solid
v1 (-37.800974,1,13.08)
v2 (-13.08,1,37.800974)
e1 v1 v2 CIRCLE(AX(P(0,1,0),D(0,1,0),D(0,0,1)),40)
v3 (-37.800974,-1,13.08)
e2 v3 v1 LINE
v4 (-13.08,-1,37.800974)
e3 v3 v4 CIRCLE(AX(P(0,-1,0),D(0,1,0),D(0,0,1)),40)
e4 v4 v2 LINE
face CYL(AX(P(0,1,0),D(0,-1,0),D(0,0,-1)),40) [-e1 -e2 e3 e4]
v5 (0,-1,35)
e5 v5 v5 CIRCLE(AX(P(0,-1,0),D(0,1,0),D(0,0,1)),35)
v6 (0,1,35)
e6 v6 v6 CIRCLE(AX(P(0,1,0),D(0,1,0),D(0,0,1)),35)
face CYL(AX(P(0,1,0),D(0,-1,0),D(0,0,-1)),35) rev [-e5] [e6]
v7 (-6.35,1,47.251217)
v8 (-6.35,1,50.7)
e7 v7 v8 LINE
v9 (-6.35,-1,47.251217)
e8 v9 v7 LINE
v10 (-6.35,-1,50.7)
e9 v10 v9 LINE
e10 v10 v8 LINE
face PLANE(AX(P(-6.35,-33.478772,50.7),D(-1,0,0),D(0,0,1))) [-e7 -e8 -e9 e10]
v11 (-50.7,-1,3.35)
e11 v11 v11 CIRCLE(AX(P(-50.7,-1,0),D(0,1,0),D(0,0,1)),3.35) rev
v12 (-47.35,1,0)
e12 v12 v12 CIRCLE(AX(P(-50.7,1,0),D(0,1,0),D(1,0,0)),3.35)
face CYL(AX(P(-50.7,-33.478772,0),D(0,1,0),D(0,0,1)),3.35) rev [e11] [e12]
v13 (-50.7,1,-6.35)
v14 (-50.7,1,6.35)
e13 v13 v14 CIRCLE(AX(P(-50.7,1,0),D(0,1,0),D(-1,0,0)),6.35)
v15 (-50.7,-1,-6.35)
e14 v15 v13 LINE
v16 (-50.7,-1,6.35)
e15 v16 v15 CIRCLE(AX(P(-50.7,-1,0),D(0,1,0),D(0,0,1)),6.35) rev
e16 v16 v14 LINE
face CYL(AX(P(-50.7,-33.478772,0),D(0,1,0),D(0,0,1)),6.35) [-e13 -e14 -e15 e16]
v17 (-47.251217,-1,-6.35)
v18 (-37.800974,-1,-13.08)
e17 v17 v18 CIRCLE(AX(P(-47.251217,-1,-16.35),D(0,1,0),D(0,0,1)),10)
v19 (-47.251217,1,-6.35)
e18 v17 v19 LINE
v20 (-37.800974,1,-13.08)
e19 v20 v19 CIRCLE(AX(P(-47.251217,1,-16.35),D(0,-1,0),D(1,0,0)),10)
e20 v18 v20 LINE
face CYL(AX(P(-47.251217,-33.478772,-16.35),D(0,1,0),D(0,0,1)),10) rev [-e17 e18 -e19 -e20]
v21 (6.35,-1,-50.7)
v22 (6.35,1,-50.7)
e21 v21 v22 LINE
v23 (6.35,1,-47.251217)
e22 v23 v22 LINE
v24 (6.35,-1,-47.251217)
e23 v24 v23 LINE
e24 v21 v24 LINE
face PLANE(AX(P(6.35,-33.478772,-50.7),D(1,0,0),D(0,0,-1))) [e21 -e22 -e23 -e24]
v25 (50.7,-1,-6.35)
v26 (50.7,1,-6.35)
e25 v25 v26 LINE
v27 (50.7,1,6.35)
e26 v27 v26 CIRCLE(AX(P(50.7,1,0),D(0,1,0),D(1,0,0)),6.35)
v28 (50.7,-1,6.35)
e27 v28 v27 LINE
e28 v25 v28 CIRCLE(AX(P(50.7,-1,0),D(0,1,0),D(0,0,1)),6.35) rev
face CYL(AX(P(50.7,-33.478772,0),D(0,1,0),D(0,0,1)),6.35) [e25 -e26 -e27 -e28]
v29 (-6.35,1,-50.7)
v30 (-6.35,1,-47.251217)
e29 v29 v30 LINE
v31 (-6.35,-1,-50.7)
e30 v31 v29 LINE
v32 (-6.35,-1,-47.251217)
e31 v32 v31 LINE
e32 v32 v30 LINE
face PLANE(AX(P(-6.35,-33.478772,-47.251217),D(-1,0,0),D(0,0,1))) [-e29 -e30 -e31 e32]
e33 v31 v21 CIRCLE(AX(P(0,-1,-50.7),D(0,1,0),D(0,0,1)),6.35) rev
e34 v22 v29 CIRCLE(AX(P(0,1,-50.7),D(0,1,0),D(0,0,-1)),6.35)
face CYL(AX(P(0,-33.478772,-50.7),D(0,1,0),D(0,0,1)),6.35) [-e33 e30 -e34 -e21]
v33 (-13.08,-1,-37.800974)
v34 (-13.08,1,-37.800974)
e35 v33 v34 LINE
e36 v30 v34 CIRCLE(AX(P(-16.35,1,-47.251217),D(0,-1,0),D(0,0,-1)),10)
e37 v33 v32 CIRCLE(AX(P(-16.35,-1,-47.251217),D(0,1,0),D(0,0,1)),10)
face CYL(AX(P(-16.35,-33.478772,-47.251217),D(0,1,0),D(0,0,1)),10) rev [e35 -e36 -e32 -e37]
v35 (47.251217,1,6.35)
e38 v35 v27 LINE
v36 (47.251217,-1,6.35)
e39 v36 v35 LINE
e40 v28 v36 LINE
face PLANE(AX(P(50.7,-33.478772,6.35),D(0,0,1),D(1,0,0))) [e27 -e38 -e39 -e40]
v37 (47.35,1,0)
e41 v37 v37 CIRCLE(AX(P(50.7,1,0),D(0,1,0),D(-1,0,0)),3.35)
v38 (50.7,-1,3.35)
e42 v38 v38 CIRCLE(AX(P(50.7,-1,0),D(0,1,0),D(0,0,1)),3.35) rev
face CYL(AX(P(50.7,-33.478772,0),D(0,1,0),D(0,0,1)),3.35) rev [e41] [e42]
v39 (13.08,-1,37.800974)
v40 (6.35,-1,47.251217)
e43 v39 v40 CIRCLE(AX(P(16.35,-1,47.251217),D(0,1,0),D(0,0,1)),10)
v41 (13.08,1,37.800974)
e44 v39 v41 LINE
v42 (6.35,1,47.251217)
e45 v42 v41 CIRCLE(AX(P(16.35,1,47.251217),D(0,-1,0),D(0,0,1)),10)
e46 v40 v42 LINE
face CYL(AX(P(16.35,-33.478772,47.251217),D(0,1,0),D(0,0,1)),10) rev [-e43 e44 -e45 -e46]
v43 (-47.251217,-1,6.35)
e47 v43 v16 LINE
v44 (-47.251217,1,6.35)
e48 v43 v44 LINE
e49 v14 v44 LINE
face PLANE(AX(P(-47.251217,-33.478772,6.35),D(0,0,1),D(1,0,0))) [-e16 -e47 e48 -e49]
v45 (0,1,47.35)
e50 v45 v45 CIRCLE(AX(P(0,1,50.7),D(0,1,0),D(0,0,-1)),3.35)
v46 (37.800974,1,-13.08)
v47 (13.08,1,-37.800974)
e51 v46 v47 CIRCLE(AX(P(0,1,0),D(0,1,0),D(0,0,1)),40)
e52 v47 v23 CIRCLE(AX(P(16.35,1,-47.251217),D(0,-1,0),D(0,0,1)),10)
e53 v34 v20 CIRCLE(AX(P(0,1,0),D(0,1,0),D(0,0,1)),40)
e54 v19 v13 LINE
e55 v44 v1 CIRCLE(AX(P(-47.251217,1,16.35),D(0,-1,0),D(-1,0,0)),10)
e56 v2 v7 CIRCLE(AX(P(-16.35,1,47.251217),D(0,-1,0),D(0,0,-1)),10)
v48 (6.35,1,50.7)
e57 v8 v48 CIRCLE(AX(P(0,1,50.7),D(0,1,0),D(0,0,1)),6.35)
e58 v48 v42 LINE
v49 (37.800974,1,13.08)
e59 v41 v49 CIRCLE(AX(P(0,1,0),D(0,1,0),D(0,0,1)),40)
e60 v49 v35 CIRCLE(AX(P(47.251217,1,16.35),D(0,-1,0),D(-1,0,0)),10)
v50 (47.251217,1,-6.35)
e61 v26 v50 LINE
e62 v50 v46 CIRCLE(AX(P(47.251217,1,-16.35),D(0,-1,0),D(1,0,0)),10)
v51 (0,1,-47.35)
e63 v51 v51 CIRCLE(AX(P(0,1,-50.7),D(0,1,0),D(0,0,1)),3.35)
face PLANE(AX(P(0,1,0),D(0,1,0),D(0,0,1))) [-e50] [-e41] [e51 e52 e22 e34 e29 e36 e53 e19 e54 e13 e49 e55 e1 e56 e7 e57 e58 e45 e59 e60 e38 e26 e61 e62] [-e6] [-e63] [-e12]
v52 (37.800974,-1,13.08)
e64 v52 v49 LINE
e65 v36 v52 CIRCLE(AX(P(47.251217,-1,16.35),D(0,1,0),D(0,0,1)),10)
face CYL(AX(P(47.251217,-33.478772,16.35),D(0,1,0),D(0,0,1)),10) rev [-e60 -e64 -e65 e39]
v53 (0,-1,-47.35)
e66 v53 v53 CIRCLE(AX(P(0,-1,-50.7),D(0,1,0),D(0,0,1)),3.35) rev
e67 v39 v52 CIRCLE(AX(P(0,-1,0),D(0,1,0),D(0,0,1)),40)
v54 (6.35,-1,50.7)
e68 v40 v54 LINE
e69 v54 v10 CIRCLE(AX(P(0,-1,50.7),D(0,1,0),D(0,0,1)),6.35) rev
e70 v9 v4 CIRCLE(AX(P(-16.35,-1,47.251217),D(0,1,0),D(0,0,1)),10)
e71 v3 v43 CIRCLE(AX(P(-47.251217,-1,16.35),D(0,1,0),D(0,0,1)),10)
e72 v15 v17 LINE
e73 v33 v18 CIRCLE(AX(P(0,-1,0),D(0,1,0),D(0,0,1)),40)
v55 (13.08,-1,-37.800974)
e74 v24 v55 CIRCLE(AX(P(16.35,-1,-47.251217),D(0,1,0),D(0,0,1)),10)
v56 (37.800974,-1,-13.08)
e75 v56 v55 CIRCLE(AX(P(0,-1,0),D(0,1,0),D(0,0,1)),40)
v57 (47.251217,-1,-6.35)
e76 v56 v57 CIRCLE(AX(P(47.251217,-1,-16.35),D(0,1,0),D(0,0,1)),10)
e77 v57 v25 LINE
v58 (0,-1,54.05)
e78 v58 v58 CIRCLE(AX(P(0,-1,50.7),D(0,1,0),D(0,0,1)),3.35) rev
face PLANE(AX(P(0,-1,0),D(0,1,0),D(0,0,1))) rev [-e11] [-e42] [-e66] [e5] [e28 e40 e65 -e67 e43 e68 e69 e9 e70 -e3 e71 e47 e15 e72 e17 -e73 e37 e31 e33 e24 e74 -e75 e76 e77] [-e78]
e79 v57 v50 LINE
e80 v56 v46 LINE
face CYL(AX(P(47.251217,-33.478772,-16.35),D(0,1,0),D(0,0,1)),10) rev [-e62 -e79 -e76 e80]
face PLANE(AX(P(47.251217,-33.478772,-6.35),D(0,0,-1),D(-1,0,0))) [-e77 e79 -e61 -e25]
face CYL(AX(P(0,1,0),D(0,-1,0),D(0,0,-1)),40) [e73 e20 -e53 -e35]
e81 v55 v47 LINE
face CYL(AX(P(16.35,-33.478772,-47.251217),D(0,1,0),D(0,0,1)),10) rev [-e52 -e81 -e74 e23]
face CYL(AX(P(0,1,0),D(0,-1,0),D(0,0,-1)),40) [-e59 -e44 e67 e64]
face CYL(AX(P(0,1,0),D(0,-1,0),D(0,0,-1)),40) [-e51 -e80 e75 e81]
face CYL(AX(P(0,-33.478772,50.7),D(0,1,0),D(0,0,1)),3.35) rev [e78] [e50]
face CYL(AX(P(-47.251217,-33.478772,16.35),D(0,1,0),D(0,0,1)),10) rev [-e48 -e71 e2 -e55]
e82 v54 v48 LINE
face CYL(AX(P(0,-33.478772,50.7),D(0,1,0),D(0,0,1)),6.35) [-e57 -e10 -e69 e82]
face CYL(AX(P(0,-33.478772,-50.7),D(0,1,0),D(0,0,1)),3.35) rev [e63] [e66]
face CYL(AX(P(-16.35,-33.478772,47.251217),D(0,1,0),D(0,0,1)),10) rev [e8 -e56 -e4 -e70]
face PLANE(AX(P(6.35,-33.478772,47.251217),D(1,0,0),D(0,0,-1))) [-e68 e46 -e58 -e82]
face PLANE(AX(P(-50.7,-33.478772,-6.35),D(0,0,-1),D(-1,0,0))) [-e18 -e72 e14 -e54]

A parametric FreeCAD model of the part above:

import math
import FreeCAD as App
import Part
import Sketcher

V = App.Vector

doc = App.newDocument("Part")
body = doc.addObject("PartDesign::Body", "Body")

# Sketch on XZ plane
sketch1 = body.newObject("Sketcher::SketchObject", "Sketch")
sketch1.AttachmentSupport = (doc.getObject("XZ_Plane"), [""])
sketch1.MapMode = "FlatFace"
sketch1.addGeometry(Part.Circle(V(0, 0, 0), V(0, 0, 1), 40), False)
sketch1.addGeometry(Part.Circle(V(0, 0, 0), V(0, 0, 1), 35), False)
sketch1.addConstraint(Sketcher.Constraint("Coincident", 0, 3, -1, 1))
sketch1.addConstraint(Sketcher.Constraint("Coincident", 1, 3, -1, 1))
sketch1.addConstraint(Sketcher.Constraint("Diameter", 0, 80.0))
sketch1.addConstraint(Sketcher.Constraint("Diameter", 1, 70.0))
pad1 = body.newObject("PartDesign::Pad", "Pad")
pad1.Profile = sketch1
pad1.Length = 2
pad1.Midplane = True

# Sketch on XZ plane
sketch2 = body.newObject("Sketcher::SketchObject", "Sketch001")
sketch2.AttachmentSupport = (doc.getObject("XZ_Plane"), [""])
sketch2.MapMode = "FlatFace"
sketch2.AttachmentOffset = App.Placement(V(0, 0, -1), App.Rotation())
sketch2.addGeometry(Part.LineSegment(V(-6.3, -50.7, 0), V(-6.3, -47.3, 0)), False)
sketch2.addGeometry(Part.ArcOfCircle(Part.Circle(V(-16.4, -47.3, 0), V(0, 0, 1), 10), math.radians(0), math.radians(71)), False)
sketch2.addGeometry(Part.ArcOfCircle(Part.Circle(V(0, 0, 0), V(0, 0, 1), 40), math.radians(-109), math.radians(-71)), False)
sketch2.addGeometry(Part.ArcOfCircle(Part.Circle(V(16.4, -47.3, 0), V(0, 0, 1), 10), math.radians(109), math.radians(180)), False)
sketch2.addGeometry(Part.LineSegment(V(6.3, -47.3, 0), V(6.3, -50.7, 0)), False)
sketch2.addGeometry(Part.ArcOfCircle(Part.Circle(V(0, -50.7, 0), V(0, 0, 1), 6.3), math.radians(180), math.radians(360)), False)
sketch2.addGeometry(Part.Circle(V(0, -50.7, 0), V(0, 0, 1), 3.4), False)
sketch2.addConstraint(Sketcher.Constraint("Tangent", 0, 2, 1, 1))
sketch2.addConstraint(Sketcher.Constraint("Tangent", 1, 2, 2, 1))
sketch2.addConstraint(Sketcher.Constraint("Tangent", 2, 2, 3, 1))
sketch2.addConstraint(Sketcher.Constraint("Tangent", 3, 2, 4, 1))
sketch2.addConstraint(Sketcher.Constraint("Tangent", 4, 2, 5, 2))
sketch2.addConstraint(Sketcher.Constraint("Tangent", 5, 1, 0, 1))
sketch2.addConstraint(Sketcher.Constraint("Vertical", 0))
sketch2.addConstraint(Sketcher.Constraint("Vertical", 4))
sketch2.addConstraint(Sketcher.Constraint("Coincident", 2, 3, -1, 1))
sketch2.addConstraint(Sketcher.Constraint("Coincident", 6, 3, 5, 3))
sketch2.addConstraint(Sketcher.Constraint("Equal", 1, 3))
sketch2.addConstraint(Sketcher.Constraint("PointOnObject", 5, 3, -2))
sketch2.addConstraint(Sketcher.Constraint("Radius", 1, 10.0))
sketch2.addConstraint(Sketcher.Constraint("Radius", 2, 40.0))
sketch2.addConstraint(Sketcher.Constraint("Diameter", 6, 6.7))
sketch2.addConstraint(Sketcher.Constraint("Radius", 5, 6.35))
sketch2.addConstraint(Sketcher.Constraint("DistanceY", 5, 3, -1, 1, 50.7))
pad2 = body.newObject("PartDesign::Pad", "Pad001")
pad2.Profile = sketch2
pad2.Length = 2
doc.recompute()

polarpattern = body.newObject("PartDesign::PolarPattern", "PolarPattern")
polarpattern.Originals = [pad2]
polarpattern.Axis = (doc.getObject("Y_Axis"), [""])
polarpattern.Angle = 360
polarpattern.Occurrences = 4
body.Tip = polarpattern

doc.recompute()
